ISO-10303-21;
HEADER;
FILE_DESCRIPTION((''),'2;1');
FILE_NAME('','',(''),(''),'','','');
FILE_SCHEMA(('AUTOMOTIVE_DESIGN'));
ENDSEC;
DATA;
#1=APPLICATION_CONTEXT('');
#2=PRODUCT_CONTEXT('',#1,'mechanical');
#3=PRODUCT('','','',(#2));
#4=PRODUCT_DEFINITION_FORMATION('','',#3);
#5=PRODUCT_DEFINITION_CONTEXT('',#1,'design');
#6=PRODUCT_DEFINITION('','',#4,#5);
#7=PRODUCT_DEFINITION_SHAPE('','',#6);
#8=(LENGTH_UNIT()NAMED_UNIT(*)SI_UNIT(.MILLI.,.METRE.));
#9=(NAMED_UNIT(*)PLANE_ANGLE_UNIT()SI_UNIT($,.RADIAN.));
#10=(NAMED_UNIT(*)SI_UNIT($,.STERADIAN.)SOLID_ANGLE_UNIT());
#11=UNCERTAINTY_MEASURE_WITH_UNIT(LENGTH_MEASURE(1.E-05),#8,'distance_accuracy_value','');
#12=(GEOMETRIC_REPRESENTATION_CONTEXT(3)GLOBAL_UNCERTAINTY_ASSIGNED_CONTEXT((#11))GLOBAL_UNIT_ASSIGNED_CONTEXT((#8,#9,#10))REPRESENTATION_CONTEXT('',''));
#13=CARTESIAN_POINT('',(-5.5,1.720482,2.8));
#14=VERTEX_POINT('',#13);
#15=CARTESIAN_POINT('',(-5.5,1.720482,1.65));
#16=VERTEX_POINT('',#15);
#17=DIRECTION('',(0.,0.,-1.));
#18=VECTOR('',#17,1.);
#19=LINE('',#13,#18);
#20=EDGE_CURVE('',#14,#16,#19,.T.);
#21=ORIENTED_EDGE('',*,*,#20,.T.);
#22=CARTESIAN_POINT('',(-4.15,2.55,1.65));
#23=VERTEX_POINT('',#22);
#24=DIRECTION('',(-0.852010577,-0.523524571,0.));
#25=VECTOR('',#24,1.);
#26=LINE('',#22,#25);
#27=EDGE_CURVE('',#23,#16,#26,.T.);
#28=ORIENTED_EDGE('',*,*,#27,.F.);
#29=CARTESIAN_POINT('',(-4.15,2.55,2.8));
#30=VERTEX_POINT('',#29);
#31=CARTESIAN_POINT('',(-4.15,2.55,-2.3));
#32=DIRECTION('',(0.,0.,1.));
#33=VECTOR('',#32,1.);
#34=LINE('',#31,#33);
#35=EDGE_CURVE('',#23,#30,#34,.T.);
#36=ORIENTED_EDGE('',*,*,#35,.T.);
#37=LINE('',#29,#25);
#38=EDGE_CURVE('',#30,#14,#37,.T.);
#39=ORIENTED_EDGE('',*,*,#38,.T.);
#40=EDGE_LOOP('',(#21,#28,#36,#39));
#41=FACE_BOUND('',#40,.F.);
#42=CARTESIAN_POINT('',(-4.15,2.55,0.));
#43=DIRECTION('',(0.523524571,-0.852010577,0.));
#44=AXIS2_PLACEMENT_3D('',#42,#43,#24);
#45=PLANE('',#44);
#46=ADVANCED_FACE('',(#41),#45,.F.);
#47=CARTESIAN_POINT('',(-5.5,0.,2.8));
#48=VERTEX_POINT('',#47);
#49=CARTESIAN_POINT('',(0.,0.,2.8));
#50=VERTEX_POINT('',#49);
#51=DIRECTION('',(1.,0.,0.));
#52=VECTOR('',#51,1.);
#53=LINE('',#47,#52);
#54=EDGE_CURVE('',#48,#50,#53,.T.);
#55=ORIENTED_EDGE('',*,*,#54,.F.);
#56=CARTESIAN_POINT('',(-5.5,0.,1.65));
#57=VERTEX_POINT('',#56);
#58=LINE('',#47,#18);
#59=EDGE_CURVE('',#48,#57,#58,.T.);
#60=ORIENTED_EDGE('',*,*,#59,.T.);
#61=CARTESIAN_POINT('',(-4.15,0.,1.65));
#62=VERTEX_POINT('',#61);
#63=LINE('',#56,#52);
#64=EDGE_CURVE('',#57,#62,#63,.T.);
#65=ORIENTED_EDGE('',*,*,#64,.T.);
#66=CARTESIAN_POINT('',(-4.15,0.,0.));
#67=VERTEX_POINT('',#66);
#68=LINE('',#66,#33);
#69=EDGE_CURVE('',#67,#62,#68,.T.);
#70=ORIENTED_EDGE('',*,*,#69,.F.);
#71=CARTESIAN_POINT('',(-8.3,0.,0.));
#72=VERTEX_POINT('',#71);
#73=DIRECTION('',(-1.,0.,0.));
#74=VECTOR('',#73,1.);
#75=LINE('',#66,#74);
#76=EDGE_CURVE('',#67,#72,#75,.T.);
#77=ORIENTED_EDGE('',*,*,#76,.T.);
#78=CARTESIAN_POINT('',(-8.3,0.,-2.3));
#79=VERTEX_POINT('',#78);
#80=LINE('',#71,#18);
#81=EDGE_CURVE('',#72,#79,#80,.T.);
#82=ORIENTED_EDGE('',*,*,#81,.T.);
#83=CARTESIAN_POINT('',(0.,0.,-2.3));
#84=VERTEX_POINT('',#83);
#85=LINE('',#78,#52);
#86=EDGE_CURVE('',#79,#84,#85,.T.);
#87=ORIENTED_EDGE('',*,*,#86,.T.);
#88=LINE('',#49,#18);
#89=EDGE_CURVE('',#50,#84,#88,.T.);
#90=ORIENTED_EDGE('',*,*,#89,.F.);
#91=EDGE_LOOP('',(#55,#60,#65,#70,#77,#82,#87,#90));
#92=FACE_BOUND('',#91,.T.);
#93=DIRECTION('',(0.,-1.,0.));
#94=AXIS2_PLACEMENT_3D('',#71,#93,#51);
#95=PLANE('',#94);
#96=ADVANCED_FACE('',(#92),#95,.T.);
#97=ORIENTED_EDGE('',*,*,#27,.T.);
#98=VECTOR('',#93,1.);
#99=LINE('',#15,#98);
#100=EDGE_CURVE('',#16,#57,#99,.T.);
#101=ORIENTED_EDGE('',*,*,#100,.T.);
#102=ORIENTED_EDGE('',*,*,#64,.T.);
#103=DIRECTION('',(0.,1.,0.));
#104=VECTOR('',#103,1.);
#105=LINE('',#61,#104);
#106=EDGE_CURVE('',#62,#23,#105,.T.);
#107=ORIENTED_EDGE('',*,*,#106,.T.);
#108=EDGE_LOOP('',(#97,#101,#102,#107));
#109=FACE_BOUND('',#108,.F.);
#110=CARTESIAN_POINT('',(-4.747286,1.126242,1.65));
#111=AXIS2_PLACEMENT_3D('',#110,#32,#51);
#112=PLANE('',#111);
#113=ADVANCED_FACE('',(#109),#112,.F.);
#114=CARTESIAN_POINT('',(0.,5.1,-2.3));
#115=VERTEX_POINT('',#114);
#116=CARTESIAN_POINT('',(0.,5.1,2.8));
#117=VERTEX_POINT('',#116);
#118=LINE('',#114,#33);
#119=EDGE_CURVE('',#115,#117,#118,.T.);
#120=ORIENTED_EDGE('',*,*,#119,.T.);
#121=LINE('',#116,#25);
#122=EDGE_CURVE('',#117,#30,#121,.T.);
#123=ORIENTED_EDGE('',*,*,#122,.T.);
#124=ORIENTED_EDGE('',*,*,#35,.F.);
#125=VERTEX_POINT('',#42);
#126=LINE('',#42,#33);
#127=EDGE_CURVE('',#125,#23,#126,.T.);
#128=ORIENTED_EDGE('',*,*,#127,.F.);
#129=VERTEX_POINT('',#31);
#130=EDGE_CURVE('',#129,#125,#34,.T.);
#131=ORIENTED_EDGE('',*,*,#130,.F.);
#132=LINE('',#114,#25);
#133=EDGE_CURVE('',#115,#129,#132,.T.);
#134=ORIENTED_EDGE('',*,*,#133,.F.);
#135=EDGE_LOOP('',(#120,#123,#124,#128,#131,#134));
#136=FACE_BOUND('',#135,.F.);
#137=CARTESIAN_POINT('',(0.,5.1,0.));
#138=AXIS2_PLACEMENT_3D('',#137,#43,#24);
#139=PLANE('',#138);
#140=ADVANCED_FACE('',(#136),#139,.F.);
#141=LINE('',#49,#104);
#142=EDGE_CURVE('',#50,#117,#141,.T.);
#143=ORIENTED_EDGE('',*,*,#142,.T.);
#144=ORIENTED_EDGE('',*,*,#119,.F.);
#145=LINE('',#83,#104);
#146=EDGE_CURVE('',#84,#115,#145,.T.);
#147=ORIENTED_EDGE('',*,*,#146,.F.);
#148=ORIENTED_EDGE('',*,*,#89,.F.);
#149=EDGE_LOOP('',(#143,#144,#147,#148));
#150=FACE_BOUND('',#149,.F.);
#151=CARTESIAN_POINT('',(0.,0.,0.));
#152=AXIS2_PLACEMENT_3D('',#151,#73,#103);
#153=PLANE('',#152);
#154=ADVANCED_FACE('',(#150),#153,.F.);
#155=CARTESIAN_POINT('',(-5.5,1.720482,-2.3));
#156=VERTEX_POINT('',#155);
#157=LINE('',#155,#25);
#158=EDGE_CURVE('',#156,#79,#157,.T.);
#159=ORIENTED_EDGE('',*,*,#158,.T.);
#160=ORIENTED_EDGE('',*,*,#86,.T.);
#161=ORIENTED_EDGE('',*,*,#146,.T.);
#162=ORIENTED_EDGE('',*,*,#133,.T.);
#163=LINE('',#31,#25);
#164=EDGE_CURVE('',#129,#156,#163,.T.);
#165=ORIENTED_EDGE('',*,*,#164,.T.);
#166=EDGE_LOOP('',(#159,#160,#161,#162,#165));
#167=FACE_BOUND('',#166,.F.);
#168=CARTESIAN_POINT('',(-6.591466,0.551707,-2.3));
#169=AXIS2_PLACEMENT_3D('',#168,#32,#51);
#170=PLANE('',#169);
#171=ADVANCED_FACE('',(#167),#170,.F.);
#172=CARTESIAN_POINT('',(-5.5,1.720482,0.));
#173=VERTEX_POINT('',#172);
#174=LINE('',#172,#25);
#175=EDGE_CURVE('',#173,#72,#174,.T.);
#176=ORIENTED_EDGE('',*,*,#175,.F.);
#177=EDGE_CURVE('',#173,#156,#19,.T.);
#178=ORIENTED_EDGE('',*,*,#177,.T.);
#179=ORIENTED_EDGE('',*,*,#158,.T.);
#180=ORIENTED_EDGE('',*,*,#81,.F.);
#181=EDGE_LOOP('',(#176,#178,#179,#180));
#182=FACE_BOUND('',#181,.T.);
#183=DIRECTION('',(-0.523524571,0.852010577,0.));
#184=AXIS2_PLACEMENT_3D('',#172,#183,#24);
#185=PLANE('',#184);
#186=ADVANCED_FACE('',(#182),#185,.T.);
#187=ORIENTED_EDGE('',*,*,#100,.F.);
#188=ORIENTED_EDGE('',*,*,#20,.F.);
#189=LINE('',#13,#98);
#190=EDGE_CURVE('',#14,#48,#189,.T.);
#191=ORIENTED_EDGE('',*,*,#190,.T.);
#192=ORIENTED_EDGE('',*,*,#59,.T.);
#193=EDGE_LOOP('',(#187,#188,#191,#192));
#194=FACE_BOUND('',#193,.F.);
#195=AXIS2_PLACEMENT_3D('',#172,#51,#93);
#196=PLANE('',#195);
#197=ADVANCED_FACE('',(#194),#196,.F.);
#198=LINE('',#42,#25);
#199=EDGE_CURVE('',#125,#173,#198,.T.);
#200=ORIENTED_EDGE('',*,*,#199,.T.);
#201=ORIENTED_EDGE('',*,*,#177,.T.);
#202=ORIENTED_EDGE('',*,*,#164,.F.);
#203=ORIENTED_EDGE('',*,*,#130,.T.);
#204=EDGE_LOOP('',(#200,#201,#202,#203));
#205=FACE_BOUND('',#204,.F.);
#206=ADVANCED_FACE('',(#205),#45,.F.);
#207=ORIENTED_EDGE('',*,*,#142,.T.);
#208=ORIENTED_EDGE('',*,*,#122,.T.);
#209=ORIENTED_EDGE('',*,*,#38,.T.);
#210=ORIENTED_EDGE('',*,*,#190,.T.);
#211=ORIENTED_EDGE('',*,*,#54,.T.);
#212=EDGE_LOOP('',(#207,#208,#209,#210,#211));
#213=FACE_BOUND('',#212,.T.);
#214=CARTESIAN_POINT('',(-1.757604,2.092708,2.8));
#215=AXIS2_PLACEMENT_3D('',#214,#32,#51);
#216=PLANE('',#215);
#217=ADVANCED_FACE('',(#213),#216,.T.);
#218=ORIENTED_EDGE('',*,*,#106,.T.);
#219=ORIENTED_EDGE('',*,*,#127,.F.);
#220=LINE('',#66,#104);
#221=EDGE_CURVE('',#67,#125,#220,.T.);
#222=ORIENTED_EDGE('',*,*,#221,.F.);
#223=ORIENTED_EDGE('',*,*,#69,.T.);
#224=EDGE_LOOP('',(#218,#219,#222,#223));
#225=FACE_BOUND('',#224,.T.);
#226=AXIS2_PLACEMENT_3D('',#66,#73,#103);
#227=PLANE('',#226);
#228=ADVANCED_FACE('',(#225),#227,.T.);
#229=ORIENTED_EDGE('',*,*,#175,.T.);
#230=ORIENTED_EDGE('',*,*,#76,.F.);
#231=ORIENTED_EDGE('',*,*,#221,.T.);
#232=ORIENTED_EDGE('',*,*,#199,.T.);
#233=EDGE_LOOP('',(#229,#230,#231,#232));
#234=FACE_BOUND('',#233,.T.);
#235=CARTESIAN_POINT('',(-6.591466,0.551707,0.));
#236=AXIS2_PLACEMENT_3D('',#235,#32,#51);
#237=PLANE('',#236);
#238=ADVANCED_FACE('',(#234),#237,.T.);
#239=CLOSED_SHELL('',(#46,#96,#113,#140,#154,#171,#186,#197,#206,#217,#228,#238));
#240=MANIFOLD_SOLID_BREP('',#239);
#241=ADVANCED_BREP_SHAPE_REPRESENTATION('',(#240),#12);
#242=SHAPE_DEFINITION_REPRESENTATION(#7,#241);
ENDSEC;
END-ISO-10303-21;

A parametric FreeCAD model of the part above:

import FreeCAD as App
import Part
import Sketcher
from FreeCAD import Vector


def add_polygon(sketch, points):
    """Adds a closed chain of lines whose ends are joined by coincident constraints."""
    first, n = sketch.GeometryCount, len(points)
    for a, b in zip(points, points[1:] + points[:1]):
        sketch.addGeometry(Part.LineSegment(App.Vector(*a, 0), App.Vector(*b, 0)), False)
    for i in range(n):
        sketch.addConstraint(Sketcher.Constraint("Coincident", first + i, 2, first + (i + 1) % n, 1))

doc = App.newDocument("Part")
body = doc.addObject("PartDesign::Body", "Body")

# Sketch on XY plane
sketch1 = body.newObject("Sketcher::SketchObject", "Sketch")
sketch1.AttachmentSupport = (doc.getObject("XY_Plane"), [""])
sketch1.MapMode = "FlatFace"
add_polygon(sketch1, [(0, 0), (0, 5.1), (-4.15, 2.55), (-5.5, 1.720482), (-5.5, 0)])  # lines 0-4
sketch1.addConstraint([
    Sketcher.Constraint("Vertical", 0),
    Sketcher.Constraint("Vertical", 3),
    Sketcher.Constraint("Horizontal", 4),
    Sketcher.Constraint("Coincident", 4, 2, -1, 1),
    Sketcher.Constraint("Parallel", 1, 2),
    Sketcher.Constraint("DistanceX", 4, 1, 4, 2, 5.5),
    Sketcher.Constraint("DistanceY", 0, 1, 0, 2, 5.1),
    Sketcher.Constraint("DistanceX", 1, 2, -1, 1, 4.15),
    Sketcher.Constraint("DistanceY", -1, 1, 1, 2, 2.55),
])
pad1 = body.newObject("PartDesign::Pad", "Pad")
pad1.Profile = sketch1
pad1.Type = "TwoLengths"
pad1.Length = 2.3
pad1.Length2 = 2.8
pad1.Reversed = True

# Sketch on XY plane
sketch2 = body.newObject("Sketcher::SketchObject", "Sketch001")
sketch2.AttachmentSupport = (doc.getObject("XY_Plane"), [""])
sketch2.MapMode = "FlatFace"
add_polygon(sketch2, [(-8.3, 0), (-5.5, 0), (-5.5, 1.720482)])  # lines 0-2
sketch2.addConstraint([
    Sketcher.Constraint("Horizontal", 0),
    Sketcher.Constraint("Vertical", 1),
    Sketcher.Constraint("PointOnObject", 0, 2, -1),
    Sketcher.Constraint("DistanceX", 0, 1, 0, 2, 2.8),
    Sketcher.Constraint("DistanceX", 0, 2, -1, 1, 5.5),
    Sketcher.Constraint("DistanceY", 1, 1, 1, 2, 1.720482),
])
pad2 = body.newObject("PartDesign::Pad", "Pad001")
pad2.Profile = sketch2
pad2.Length = 2.3
pad2.Reversed = True

# Sketch on XY plane
sketch3 = body.newObject("Sketcher::SketchObject", "Sketch002")
sketch3.AttachmentSupport = (doc.getObject("XY_Plane"), [""])
sketch3.MapMode = "FlatFace"
add_polygon(sketch3, [(-5.5, 0), (-4.15, 0), (-4.15, 2.55), (-5.5, 1.720482)])  # lines 0-3
sketch3.addConstraint([
    Sketcher.Constraint("Horizontal", 0),
    Sketcher.Constraint("Vertical", 1),
    Sketcher.Constraint("Vertical", 3),
    Sketcher.Constraint("PointOnObject", 0, 2, -1),
    Sketcher.Constraint("DistanceX", 0, 1, 0, 2, 1.35),
    Sketcher.Constraint("DistanceY", 1, 1, 1, 2, 2.55),
    Sketcher.Constraint("DistanceX", 2, 2, -1, 1, 5.5),
    Sketcher.Constraint("DistanceY", 3, 2, 3, 1, 1.720482),
])
pocket1 = body.newObject("PartDesign::Pocket", "Pocket")
pocket1.Profile = sketch3
pocket1.Length = 1.65
pocket1.Reversed = True

doc.recompute()
